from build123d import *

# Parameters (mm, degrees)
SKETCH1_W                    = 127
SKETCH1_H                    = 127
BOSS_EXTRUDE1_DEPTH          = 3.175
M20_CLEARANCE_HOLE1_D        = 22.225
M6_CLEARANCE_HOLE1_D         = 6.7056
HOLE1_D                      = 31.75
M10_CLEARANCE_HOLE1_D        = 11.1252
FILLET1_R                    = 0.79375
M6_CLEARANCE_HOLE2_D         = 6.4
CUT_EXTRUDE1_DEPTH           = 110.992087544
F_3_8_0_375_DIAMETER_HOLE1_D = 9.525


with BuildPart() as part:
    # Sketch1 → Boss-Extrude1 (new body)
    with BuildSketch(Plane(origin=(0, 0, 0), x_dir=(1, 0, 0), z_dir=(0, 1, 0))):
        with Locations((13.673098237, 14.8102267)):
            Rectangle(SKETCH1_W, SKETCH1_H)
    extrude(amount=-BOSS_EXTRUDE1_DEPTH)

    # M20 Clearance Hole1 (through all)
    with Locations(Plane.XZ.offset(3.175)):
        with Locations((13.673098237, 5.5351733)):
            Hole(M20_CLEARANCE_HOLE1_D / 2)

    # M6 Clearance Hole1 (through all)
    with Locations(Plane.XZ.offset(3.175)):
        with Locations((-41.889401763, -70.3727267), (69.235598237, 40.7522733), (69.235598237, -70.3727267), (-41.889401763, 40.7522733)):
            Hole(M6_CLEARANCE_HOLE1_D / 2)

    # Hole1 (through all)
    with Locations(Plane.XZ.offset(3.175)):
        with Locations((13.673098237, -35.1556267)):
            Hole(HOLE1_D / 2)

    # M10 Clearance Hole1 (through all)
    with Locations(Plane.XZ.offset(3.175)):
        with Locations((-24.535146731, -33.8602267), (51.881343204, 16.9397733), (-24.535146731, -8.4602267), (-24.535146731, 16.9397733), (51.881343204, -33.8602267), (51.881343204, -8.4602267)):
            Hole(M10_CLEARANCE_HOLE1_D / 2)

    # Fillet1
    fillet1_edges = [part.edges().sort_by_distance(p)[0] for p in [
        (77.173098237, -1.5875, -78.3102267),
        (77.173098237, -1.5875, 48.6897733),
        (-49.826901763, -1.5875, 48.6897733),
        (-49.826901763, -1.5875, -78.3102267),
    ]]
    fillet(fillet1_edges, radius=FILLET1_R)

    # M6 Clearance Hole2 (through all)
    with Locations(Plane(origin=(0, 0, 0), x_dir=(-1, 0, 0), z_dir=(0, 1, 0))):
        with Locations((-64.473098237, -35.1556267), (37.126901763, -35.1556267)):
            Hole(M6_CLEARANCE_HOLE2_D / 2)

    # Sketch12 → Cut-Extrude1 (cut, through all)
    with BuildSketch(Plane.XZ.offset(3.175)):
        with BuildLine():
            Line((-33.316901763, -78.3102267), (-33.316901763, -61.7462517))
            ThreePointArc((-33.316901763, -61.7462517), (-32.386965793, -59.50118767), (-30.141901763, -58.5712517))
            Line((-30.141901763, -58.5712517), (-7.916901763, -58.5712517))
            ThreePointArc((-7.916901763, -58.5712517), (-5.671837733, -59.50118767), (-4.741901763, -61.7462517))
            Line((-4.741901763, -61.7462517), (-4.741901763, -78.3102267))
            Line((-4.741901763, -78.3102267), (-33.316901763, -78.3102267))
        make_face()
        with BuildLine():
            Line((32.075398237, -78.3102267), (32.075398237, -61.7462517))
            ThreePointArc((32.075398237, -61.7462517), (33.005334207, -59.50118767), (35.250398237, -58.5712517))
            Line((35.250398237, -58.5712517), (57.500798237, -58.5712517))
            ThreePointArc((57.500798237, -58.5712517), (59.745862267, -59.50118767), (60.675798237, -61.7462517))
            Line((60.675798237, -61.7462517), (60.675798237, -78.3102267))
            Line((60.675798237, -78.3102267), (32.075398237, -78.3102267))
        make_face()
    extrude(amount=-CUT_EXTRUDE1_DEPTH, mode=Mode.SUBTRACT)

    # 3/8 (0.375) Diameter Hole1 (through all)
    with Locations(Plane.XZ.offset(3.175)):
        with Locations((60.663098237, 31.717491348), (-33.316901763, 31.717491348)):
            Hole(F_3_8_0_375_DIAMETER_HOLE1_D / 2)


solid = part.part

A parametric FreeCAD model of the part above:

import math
import FreeCAD as App
import Part
import Sketcher

V = App.Vector
Q = App.Units.Quantity


def edges_at(feature, points):
    """Names of the edges that pass closest to the given points."""
    edges = feature.Shape.Edges
    near = lambda p: min(range(len(edges)), key=lambda i: edges[i].distToShape(Part.Vertex(*p))[0])
    return sorted({f"Edge{near(p) + 1}" for p in points})

doc = App.newDocument("Part")
params = doc.addObject("Spreadsheet::Sheet", "Params")
for row, (alias, value) in enumerate([
    ("sketch1_width", "5 in"),
    ("pad1_length", "0.125 in"),
    ("sketch2_diameter", "0.875 in"),
    ("hole_diameter", "0.875 in"),
    ("sketch3_diameter", "0.264 in"),
    ("hole2_diameter", "0.264 in"),
    ("sketch4_diameter", "1.25 in"),
    ("hole3_diameter", "1.25 in"),
    ("sketch5_diameter", "0.438 in"),
    ("hole4_diameter", "0.438 in"),
    ("fillet_radius", "0.03125 in"),
    ("hole5_diameter", "6.4 mm"),
    ("sketch7_radius", "0.125 in"),
    ("sketch7_width", "1.126 in"),
    ("sketch8_diameter", "0.375 in"),
    ("hole6_diameter", "0.375 in"),
], start=1):
    params.set(f"A{row}", alias)
    params.set(f"B{row}", "=" + value)
    params.setAlias(f"B{row}", alias)

body = doc.addObject("PartDesign::Body", "Body")

sketch1 = body.newObject("Sketcher::SketchObject", "Sketch")
sketch1.AttachmentSupport = (doc.getObject("XZ_Plane"), [""])
sketch1.MapMode = "FlatFace"
sketch1.addGeometry([
    Part.LineSegment(V(-49.826902, -78.310227, 0), V(-49.826902, 48.689773, 0)),
    Part.LineSegment(V(-49.826902, 48.689773, 0), V(77.173098, 48.689773, 0)),
    Part.LineSegment(V(77.173098, 48.689773, 0), V(77.173098, -78.310227, 0)),
    Part.LineSegment(V(77.173098, -78.310227, 0), V(-49.826902, -78.310227, 0)),
], False)
sketch1.addConstraint([
    Sketcher.Constraint("Coincident", 0, 2, 1, 1),
    Sketcher.Constraint("Coincident", 1, 2, 2, 1),
    Sketcher.Constraint("Coincident", 2, 2, 3, 1),
    Sketcher.Constraint("Coincident", 3, 2, 0, 1),
    Sketcher.Constraint("Vertical", 0),
    Sketcher.Constraint("Horizontal", 1),
    Sketcher.Constraint("Vertical", 2),
    Sketcher.Constraint("Horizontal", 3),
    Sketcher.Constraint("Equal", 3, 0),
    Sketcher.Constraint("DistanceX", 1, 1, 1, 2, Q("5 in")),
    Sketcher.Constraint("DistanceX", 0, 2, -1, 1, Q("49.826902 mm")),
    Sketcher.Constraint("DistanceY", -1, 1, 0, 2, Q("48.689773 mm")),
])
sketch1.setExpression("Constraints[9]", "Params.sketch1_width")
pad1 = body.newObject("PartDesign::Pad", "Pad")
pad1.Profile = sketch1
pad1.setExpression("Length", "Params.pad1_length")

sketch2 = body.newObject("Sketcher::SketchObject", "Sketch001")
sketch2.AttachmentSupport = (doc.getObject("XZ_Plane"), [""])
sketch2.MapMode = "FlatFace"
sketch2.AttachmentOffset = App.Placement(V(0, 0, 0.125 * 25.4), App.Rotation())
sketch2.addGeometry(Part.Circle(V(13.673098, 5.535173, 0), V(0, 0, 1), 11.1125), False)
sketch2.addConstraint([
    Sketcher.Constraint("Diameter", 0, Q("0.875 in")),
    Sketcher.Constraint("DistanceX", -1, 1, 0, 3, Q("13.673098 mm")),
    Sketcher.Constraint("DistanceY", -1, 1, 0, 3, Q("5.535173 mm")),
])
sketch2.setExpression("Constraints[0]", "Params.sketch2_diameter")
doc.recompute()
hole = body.newObject("PartDesign::Hole", "Hole")
hole.Profile = sketch2
hole.ThreadType = "None"
hole.setExpression("Diameter", "Params.hole_diameter")
hole.DepthType = "ThroughAll"

sketch3 = body.newObject("Sketcher::SketchObject", "Sketch002")
sketch3.AttachmentSupport = (doc.getObject("XZ_Plane"), [""])
sketch3.MapMode = "FlatFace"
sketch3.AttachmentOffset = App.Placement(V(0, 0, 0.125 * 25.4), App.Rotation())
sketch3.addGeometry([
    Part.Circle(V(-41.889402, -70.372727, 0), V(0, 0, 1), 3.3528),
    Part.Circle(V(69.235598, 40.752273, 0), V(0, 0, 1), 3.3528),
    Part.Circle(V(69.235598, -70.372727, 0), V(0, 0, 1), 3.3528),
    Part.Circle(V(-41.889402, 40.752273, 0), V(0, 0, 1), 3.3528),
], False)
sketch3.addConstraint([
    Sketcher.Constraint("Equal", 0, 1),
    Sketcher.Constraint("Equal", 1, 2),
    Sketcher.Constraint("Equal", 2, 3),
    Sketcher.Constraint("Horizontal", 0, 3, 2, 3),
    Sketcher.Constraint("Horizontal", 1, 3, 3, 3),
    Sketcher.Constraint("Vertical", 1, 3, 2, 3),
    Sketcher.Constraint("Vertical", 0, 3, 3, 3),
    Sketcher.Constraint("Diameter", 0, Q("0.264 in")),
    Sketcher.Constraint("DistanceX", 0, 3, 1, 3, Q("4.375 in")),
    Sketcher.Constraint("DistanceY", 0, 3, 1, 3, Q("4.375 in")),
    Sketcher.Constraint("DistanceX", 0, 3, -1, 1, Q("41.889402 mm")),
    Sketcher.Constraint("DistanceY", 0, 3, -1, 1, Q("70.372727 mm")),
])
sketch3.setExpression("Constraints[7]", "Params.sketch3_diameter")
doc.recompute()
hole2 = body.newObject("PartDesign::Hole", "Hole001")
hole2.Profile = sketch3
hole2.ThreadType = "None"
hole2.setExpression("Diameter", "Params.hole2_diameter")
hole2.DepthType = "ThroughAll"

sketch4 = body.newObject("Sketcher::SketchObject", "Sketch003")
sketch4.AttachmentSupport = (doc.getObject("XZ_Plane"), [""])
sketch4.MapMode = "FlatFace"
sketch4.AttachmentOffset = App.Placement(V(0, 0, 0.125 * 25.4), App.Rotation())
sketch4.addGeometry(Part.Circle(V(13.673098, -35.155627, 0), V(0, 0, 1), 15.875), False)
sketch4.addConstraint([
    Sketcher.Constraint("Diameter", 0, Q("1.25 in")),
    Sketcher.Constraint("DistanceX", -1, 1, 0, 3, Q("13.673098 mm")),
    Sketcher.Constraint("DistanceY", 0, 3, -1, 1, Q("35.155627 mm")),
])
sketch4.setExpression("Constraints[0]", "Params.sketch4_diameter")
doc.recompute()
hole3 = body.newObject("PartDesign::Hole", "Hole002")
hole3.Profile = sketch4
hole3.ThreadType = "None"
hole3.setExpression("Diameter", "Params.hole3_diameter")
hole3.DepthType = "ThroughAll"

sketch5 = body.newObject("Sketcher::SketchObject", "Sketch004")
sketch5.AttachmentSupport = (doc.getObject("XZ_Plane"), [""])
sketch5.MapMode = "FlatFace"
sketch5.AttachmentOffset = App.Placement(V(0, 0, 0.125 * 25.4), App.Rotation())
sketch5.addGeometry([
    Part.Circle(V(-24.535147, -33.860227, 0), V(0, 0, 1), 5.5626),
    Part.Circle(V(51.881343, 16.939773, 0), V(0, 0, 1), 5.5626),
    Part.Circle(V(-24.535147, -8.460227, 0), V(0, 0, 1), 5.5626),
    Part.Circle(V(-24.535147, 16.939773, 0), V(0, 0, 1), 5.5626),
    Part.Circle(V(51.881343, -33.860227, 0), V(0, 0, 1), 5.5626),
    Part.Circle(V(51.881343, -8.460227, 0), V(0, 0, 1), 5.5626),
], False)
sketch5.addConstraint([
    Sketcher.Constraint("Equal", 0, 1),
    Sketcher.Constraint("Equal", 1, 2),
    Sketcher.Constraint("Equal", 2, 3),
    Sketcher.Constraint("Equal", 3, 4),
    Sketcher.Constraint("Equal", 4, 5),
    Sketcher.Constraint("Horizontal", 1, 3, 3, 3),
    Sketcher.Constraint("Horizontal", 0, 3, 4, 3),
    Sketcher.Constraint("Horizontal", 2, 3, 5, 3),
    Sketcher.Constraint("Vertical", 0, 3, 2, 3),
    Sketcher.Constraint("Vertical", 2, 3, 3, 3),
    Sketcher.Constraint("Vertical", 1, 3, 4, 3),
    Sketcher.Constraint("Vertical", 4, 3, 5, 3),
    Sketcher.Constraint("Diameter", 0, Q("0.438 in")),
    Sketcher.Constraint("DistanceY", 0, 3, 1, 3, Q("2 in")),
    Sketcher.Constraint("DistanceY", 0, 3, 2, 3, Q("1 in")),
    Sketcher.Constraint("DistanceX", 0, 3, 1, 3, Q("76.41649 mm")),
    Sketcher.Constraint("DistanceX", 0, 3, -1, 1, Q("24.535147 mm")),
    Sketcher.Constraint("DistanceY", 0, 3, -1, 1, Q("33.860227 mm")),
])
sketch5.setExpression("Constraints[12]", "Params.sketch5_diameter")
doc.recompute()
hole4 = body.newObject("PartDesign::Hole", "Hole003")
hole4.Profile = sketch5
hole4.ThreadType = "None"
hole4.setExpression("Diameter", "Params.hole4_diameter")
hole4.DepthType = "ThroughAll"
doc.recompute()

fillet = body.newObject("PartDesign::Fillet", "Fillet")
fillet.Base = (hole4, edges_at(hole4, [
    (77.173, -1.587, -78.31),
    (77.173, -1.587, 48.69),
    (-49.827, -1.587, 48.69),
    (-49.827, -1.587, -78.31),
]))
fillet.setExpression("Radius", "Params.fillet_radius")

sketch6 = body.newObject("Sketcher::SketchObject", "Sketch005")
sketch6.AttachmentSupport = (doc.getObject("XZ_Plane"), [""])
sketch6.MapMode = "FlatFace"
sketch6.addGeometry([
    Part.Circle(V(64.473098, -35.155627, 0), V(0, 0, 1), 3.2),
    Part.Circle(V(-37.126902, -35.155627, 0), V(0, 0, 1), 3.2),
], False)
sketch6.addConstraint([
    Sketcher.Constraint("Equal", 0, 1),
    Sketcher.Constraint("Horizontal", 0, 3, 1, 3),
    Sketcher.Constraint("DistanceX", 1, 3, 0, 3, Q("4 in")),
    Sketcher.Constraint("Diameter", 0, Q("6.4 mm")),
    Sketcher.Constraint("DistanceX", -1, 1, 0, 3, Q("64.473098 mm")),
    Sketcher.Constraint("DistanceY", 0, 3, -1, 1, Q("35.155627 mm")),
])
doc.recompute()
hole5 = body.newObject("PartDesign::Hole", "Hole004")
hole5.Profile = sketch6
hole5.ThreadType = "None"
hole5.setExpression("Diameter", "Params.hole5_diameter")
hole5.DepthType = "ThroughAll"
hole5.Reversed = True

sketch7 = body.newObject("Sketcher::SketchObject", "Sketch006")
sketch7.AttachmentSupport = (doc.getObject("XZ_Plane"), [""])
sketch7.MapMode = "FlatFace"
sketch7.AttachmentOffset = App.Placement(V(0, 0, 0.125 * 25.4), App.Rotation())
sketch7.addGeometry([
    Part.LineSegment(V(-33.316902, -61.746252, 0), V(-33.316902, -78.310227, 0)),
    Part.LineSegment(V(-33.316902, -78.310227, 0), V(-4.741902, -78.310227, 0)),
    Part.LineSegment(V(-4.741902, -78.310227, 0), V(-4.741902, -61.746252, 0)),
    Part.ArcOfCircle(Part.Circle(V(-7.916902, -61.746252, 0), V(0, 0, 1), 3.175), math.radians(0), math.radians(90)),
    Part.LineSegment(V(-7.916902, -58.571252, 0), V(-30.141902, -58.571252, 0)),
    Part.ArcOfCircle(Part.Circle(V(-30.141902, -61.746252, 0), V(0, 0, 1), 3.175), math.radians(90), math.radians(180)),
    Part.LineSegment(V(32.075398, -61.746252, 0), V(32.075398, -78.310227, 0)),
    Part.LineSegment(V(32.075398, -78.310227, 0), V(60.675798, -78.310227, 0)),
    Part.LineSegment(V(60.675798, -78.310227, 0), V(60.675798, -61.746252, 0)),
    Part.ArcOfCircle(Part.Circle(V(57.500798, -61.746252, 0), V(0, 0, 1), 3.175), math.radians(0), math.radians(90)),
    Part.LineSegment(V(57.500798, -58.571252, 0), V(35.250398, -58.571252, 0)),
    Part.ArcOfCircle(Part.Circle(V(35.250398, -61.746252, 0), V(0, 0, 1), 3.175), math.radians(90), math.radians(180)),
], False)
sketch7.addConstraint([
    Sketcher.Constraint("Coincident", 0, 2, 1, 1),
    Sketcher.Constraint("Coincident", 1, 2, 2, 1),
    Sketcher.Constraint("Tangent", 2, 2, 3, 1),
    Sketcher.Constraint("Tangent", 3, 2, 4, 1),
    Sketcher.Constraint("Tangent", 4, 2, 5, 1),
    Sketcher.Constraint("Tangent", 5, 2, 0, 1),
    Sketcher.Constraint("Coincident", 6, 2, 7, 1),
    Sketcher.Constraint("Coincident", 7, 2, 8, 1),
    Sketcher.Constraint("Tangent", 8, 2, 9, 1),
    Sketcher.Constraint("Tangent", 9, 2, 10, 1),
    Sketcher.Constraint("Tangent", 10, 2, 11, 1),
    Sketcher.Constraint("Tangent", 11, 2, 6, 1),
    Sketcher.Constraint("Vertical", 0),
    Sketcher.Constraint("Horizontal", 1),
    Sketcher.Constraint("Vertical", 2),
    Sketcher.Constraint("Horizontal", 4),
    Sketcher.Constraint("Vertical", 6),
    Sketcher.Constraint("Horizontal", 7),
    Sketcher.Constraint("Vertical", 8),
    Sketcher.Constraint("Horizontal", 10),
    Sketcher.Constraint("Equal", 3, 5),
    Sketcher.Constraint("Equal", 5, 9),
    Sketcher.Constraint("Equal", 9, 11),
    Sketcher.Constraint("Horizontal", 5, 3, 9, 3),
    Sketcher.Constraint("Horizontal", 1, 2, 6, 2),
    Sketcher.Constraint("Radius", 3, Q("0.125 in")),
    Sketcher.Constraint("DistanceX", 0, 2, 3, 3, Q("1 in")),
    Sketcher.Constraint("DistanceX", 7, 1, 7, 2, Q("1.126 in")),
    Sketcher.Constraint("DistanceX", 3, 3, 9, 3, Q("2.5755 in")),
    Sketcher.Constraint("DistanceX", 3, 3, -1, 1, Q("7.916902 mm")),
    Sketcher.Constraint("DistanceY", 0, 2, 0, 1, Q("16.563975 mm")),
    Sketcher.Constraint("DistanceY", 3, 3, -1, 1, Q("61.746252 mm")),
])
sketch7.setExpression("Constraints[25]", "Params.sketch7_radius")
sketch7.setExpression("Constraints[27]", "Params.sketch7_width")
pocket1 = body.newObject("PartDesign::Pocket", "Pocket")
pocket1.Profile = sketch7
pocket1.Type = "ThroughAll"

sketch8 = body.newObject("Sketcher::SketchObject", "Sketch007")
sketch8.AttachmentSupport = (doc.getObject("XZ_Plane"), [""])
sketch8.MapMode = "FlatFace"
sketch8.AttachmentOffset = App.Placement(V(0, 0, 0.125 * 25.4), App.Rotation())
sketch8.addGeometry([
    Part.Circle(V(60.663098, 31.717491, 0), V(0, 0, 1), 4.7625),
    Part.Circle(V(-33.316902, 31.717491, 0), V(0, 0, 1), 4.7625),
], False)
sketch8.addConstraint([
    Sketcher.Constraint("Equal", 0, 1),
    Sketcher.Constraint("Horizontal", 0, 3, 1, 3),
    Sketcher.Constraint("Diameter", 0, Q("0.375 in")),
    Sketcher.Constraint("DistanceX", 1, 3, 0, 3, Q("3.7 in")),
    Sketcher.Constraint("DistanceX", -1, 1, 0, 3, Q("60.663098 mm")),
    Sketcher.Constraint("DistanceY", -1, 1, 0, 3, Q("31.717491 mm")),
])
sketch8.setExpression("Constraints[2]", "Params.sketch8_diameter")
doc.recompute()
hole6 = body.newObject("PartDesign::Hole", "Hole005")
hole6.Profile = sketch8
hole6.ThreadType = "None"
hole6.setExpression("Diameter", "Params.hole6_diameter")
hole6.DepthType = "ThroughAll"

doc.recompute()
